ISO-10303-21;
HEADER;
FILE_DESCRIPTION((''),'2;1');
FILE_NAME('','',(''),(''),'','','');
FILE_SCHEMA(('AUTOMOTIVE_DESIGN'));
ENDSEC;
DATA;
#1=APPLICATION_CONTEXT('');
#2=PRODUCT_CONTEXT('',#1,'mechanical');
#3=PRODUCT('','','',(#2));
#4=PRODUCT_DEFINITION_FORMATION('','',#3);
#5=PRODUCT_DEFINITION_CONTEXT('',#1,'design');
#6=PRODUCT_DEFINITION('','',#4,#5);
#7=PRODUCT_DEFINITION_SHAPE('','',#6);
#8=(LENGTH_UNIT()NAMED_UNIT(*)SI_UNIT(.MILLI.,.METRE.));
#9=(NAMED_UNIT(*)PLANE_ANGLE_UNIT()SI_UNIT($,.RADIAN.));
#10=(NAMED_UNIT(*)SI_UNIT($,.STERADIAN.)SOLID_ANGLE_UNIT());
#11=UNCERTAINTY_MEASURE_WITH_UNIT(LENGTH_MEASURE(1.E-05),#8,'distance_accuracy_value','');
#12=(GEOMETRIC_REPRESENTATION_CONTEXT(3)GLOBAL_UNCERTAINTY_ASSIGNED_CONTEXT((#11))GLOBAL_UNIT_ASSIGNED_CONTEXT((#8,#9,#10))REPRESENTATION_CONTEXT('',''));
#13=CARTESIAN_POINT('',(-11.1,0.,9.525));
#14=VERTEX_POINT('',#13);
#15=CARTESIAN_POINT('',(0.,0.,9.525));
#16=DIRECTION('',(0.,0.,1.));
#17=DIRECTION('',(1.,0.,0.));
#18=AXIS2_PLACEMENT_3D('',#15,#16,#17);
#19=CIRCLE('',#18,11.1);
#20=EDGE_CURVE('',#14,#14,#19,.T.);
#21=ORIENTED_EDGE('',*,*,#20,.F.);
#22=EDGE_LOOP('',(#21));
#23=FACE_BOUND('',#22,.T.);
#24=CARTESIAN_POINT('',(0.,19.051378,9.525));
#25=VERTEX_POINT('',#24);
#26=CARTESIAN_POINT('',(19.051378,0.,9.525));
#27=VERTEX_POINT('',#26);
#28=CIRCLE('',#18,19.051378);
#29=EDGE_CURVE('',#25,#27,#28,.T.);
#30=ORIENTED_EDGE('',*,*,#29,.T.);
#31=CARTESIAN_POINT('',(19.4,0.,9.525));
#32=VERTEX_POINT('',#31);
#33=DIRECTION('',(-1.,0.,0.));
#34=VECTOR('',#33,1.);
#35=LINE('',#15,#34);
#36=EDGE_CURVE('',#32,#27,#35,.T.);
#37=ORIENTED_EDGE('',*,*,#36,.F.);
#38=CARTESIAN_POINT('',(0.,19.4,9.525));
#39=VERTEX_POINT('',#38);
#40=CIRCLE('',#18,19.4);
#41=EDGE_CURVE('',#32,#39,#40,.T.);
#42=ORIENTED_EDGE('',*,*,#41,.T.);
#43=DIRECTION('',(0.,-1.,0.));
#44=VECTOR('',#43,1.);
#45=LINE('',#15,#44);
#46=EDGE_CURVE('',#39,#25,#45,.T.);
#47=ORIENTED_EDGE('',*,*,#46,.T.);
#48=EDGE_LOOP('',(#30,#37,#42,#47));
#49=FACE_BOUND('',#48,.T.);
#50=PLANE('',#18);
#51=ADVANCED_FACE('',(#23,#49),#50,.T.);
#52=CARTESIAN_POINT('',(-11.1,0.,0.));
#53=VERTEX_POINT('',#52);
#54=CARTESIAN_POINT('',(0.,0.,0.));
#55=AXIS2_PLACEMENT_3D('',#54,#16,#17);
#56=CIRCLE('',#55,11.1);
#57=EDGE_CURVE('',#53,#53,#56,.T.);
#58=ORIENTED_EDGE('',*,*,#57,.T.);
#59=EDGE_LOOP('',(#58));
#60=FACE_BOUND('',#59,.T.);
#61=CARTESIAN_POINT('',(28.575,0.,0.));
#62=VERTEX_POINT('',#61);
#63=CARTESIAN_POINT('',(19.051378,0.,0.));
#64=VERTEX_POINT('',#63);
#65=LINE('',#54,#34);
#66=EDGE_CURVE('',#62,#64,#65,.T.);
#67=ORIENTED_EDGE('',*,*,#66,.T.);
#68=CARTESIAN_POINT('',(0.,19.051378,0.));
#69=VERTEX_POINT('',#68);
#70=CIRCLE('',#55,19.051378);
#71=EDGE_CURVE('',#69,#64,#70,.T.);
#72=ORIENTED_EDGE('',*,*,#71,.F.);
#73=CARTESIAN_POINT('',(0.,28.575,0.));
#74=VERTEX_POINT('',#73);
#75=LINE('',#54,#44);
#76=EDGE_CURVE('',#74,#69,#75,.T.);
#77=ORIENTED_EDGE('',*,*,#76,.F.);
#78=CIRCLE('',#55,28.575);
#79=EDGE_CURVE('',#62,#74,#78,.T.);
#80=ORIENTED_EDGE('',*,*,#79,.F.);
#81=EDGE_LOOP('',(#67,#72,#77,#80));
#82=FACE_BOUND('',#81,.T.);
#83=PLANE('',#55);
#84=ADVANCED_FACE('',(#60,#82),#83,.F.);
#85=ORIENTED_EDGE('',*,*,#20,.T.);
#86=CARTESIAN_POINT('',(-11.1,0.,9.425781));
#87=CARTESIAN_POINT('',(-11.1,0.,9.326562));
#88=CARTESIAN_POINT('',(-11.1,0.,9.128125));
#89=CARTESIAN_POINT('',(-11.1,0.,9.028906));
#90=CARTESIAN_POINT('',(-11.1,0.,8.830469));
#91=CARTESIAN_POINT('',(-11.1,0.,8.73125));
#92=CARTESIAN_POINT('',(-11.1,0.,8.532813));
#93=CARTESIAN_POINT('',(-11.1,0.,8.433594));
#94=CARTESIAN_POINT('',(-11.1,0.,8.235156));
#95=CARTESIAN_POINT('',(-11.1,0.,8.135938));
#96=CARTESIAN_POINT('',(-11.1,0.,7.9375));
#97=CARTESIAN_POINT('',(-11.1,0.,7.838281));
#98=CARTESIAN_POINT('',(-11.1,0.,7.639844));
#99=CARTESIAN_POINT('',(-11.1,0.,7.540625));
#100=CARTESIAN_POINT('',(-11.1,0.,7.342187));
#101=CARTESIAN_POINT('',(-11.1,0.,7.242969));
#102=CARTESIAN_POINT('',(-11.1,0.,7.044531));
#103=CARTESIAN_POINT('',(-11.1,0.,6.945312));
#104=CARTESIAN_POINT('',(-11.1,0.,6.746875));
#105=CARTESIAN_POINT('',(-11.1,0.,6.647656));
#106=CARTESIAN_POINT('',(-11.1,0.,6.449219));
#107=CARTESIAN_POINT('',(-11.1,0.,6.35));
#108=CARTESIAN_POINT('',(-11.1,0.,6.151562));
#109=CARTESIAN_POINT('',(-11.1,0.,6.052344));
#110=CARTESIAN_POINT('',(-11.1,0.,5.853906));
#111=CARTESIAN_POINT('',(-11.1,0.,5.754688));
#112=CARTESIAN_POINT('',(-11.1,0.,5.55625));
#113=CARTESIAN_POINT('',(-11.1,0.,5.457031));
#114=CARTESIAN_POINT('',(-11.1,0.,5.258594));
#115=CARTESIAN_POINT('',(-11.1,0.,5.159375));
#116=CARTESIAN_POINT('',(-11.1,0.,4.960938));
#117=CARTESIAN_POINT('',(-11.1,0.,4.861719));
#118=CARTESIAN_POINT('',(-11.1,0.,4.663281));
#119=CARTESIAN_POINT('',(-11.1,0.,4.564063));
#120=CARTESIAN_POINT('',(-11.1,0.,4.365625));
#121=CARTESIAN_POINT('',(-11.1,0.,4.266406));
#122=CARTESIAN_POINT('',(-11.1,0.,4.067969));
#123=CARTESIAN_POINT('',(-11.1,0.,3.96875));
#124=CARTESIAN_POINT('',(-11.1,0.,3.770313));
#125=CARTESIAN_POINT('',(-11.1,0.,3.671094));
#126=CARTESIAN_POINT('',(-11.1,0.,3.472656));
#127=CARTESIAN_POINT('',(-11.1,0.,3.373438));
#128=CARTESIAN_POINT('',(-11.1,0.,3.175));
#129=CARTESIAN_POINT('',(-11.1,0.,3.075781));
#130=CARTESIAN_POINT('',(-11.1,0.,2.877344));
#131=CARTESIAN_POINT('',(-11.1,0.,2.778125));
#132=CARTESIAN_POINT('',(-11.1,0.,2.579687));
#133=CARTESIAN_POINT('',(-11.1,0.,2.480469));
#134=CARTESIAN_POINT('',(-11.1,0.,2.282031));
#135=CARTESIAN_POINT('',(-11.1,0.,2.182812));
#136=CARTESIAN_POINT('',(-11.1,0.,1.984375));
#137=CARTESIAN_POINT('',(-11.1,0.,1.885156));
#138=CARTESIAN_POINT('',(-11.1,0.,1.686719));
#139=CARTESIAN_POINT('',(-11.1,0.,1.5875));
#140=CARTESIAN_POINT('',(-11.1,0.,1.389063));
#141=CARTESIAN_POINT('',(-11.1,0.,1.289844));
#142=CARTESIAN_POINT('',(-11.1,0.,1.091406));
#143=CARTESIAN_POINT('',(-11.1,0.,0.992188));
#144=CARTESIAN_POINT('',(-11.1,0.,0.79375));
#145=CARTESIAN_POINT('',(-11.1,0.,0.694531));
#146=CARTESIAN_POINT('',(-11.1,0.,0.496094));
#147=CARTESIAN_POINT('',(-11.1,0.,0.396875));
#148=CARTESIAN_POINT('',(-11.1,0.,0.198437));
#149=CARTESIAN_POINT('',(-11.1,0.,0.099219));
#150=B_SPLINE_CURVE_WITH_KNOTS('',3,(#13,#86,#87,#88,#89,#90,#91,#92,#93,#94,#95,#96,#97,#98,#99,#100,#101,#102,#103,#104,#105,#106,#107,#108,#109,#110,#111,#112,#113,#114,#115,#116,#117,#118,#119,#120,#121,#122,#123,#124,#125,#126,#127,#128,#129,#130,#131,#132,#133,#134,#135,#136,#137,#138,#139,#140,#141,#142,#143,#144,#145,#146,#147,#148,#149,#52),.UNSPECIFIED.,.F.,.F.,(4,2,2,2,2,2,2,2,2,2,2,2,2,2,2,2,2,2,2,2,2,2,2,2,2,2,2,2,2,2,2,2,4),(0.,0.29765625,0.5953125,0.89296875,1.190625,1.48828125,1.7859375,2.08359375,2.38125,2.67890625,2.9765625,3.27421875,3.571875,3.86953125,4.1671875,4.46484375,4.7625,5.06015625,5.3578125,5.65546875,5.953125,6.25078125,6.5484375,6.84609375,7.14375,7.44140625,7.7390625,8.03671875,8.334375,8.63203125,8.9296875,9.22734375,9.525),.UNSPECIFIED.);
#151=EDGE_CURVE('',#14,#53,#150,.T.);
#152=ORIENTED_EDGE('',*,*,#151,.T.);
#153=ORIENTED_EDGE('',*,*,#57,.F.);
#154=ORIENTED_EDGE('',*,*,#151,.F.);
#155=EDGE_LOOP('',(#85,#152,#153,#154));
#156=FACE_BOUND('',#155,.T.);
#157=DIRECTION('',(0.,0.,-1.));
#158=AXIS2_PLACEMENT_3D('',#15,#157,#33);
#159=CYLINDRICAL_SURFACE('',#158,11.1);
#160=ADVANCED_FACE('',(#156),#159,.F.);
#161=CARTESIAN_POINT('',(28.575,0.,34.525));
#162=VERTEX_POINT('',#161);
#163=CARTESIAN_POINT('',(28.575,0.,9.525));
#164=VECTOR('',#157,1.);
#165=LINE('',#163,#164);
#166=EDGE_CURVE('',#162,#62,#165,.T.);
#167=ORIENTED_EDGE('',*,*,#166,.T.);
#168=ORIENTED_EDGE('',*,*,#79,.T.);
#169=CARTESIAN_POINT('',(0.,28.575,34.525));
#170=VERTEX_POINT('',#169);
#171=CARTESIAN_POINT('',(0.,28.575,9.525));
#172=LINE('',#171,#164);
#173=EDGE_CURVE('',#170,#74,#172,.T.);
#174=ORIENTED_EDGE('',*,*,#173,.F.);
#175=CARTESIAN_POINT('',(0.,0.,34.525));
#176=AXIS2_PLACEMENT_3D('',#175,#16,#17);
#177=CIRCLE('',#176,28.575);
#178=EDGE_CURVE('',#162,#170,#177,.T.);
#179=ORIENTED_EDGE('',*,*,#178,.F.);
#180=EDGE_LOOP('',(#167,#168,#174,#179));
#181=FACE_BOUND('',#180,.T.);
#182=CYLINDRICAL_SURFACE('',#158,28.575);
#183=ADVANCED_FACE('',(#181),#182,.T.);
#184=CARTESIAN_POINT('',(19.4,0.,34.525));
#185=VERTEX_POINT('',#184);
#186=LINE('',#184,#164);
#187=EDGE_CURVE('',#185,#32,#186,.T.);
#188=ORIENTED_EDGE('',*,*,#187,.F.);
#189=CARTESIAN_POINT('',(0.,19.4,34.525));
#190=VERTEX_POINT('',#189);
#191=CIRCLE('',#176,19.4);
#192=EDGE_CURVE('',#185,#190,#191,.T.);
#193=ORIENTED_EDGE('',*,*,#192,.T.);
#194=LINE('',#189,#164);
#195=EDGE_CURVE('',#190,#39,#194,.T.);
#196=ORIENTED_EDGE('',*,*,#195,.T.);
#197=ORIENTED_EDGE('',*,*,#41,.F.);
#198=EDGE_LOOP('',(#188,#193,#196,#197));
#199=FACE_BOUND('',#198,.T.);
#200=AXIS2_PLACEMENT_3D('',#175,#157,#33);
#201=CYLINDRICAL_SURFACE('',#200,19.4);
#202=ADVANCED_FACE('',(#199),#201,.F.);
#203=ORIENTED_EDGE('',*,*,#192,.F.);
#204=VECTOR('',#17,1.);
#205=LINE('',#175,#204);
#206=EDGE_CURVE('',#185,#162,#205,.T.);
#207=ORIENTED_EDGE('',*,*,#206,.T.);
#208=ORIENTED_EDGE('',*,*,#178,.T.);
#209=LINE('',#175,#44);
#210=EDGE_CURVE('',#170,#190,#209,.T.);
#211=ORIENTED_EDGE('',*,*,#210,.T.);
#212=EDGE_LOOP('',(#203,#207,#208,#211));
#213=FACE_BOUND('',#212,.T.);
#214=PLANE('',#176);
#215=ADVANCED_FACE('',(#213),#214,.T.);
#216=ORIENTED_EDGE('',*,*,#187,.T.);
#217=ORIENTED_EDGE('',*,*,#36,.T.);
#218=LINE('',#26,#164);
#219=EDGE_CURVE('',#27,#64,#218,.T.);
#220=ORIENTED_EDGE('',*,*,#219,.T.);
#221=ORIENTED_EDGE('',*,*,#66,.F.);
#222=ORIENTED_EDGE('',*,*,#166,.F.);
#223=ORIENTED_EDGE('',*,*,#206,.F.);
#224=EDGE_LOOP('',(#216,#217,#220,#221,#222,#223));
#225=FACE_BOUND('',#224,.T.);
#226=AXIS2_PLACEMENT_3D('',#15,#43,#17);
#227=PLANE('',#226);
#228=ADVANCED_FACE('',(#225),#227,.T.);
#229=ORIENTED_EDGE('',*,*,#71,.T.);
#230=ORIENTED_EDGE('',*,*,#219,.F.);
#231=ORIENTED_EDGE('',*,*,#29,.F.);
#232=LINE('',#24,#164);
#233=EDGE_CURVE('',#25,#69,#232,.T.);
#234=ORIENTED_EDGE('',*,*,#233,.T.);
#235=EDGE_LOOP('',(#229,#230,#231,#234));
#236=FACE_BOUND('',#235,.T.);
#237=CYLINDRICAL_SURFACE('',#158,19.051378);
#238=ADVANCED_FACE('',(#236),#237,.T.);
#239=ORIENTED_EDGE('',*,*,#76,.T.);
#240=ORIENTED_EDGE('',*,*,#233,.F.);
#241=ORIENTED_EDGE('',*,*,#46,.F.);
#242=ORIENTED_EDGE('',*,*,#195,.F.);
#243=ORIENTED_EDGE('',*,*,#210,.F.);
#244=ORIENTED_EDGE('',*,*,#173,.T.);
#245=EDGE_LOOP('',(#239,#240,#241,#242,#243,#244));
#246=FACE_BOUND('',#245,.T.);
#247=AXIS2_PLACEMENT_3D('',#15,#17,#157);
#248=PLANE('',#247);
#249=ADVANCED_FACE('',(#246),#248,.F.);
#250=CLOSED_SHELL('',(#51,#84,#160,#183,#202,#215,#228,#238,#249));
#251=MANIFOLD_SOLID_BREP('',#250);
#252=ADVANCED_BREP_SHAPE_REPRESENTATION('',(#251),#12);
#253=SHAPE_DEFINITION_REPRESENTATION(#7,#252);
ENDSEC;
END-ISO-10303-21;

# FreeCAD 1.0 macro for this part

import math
import FreeCAD as App
import Part
import Sketcher

V = App.Vector
Q = App.Units.Quantity

doc = App.newDocument("Part")
body = doc.addObject("PartDesign::Body", "Body")

# Sketch on XY plane
sketch1 = body.newObject("Sketcher::SketchObject", "Sketch")
sketch1.AttachmentSupport = (doc.getObject("XY_Plane"), [""])
sketch1.MapMode = "FlatFace"
sketch1.addGeometry(Part.ArcOfCircle(Part.Circle(V(0, 0, 0), V(0, 0, 1), 28.575), math.radians(0), math.radians(90)), False)
sketch1.addGeometry(Part.LineSegment(V(0, 28.575, 0), V(0, 19.051378, 0)), False)
sketch1.addGeometry(Part.ArcOfCircle(Part.Circle(V(0, 0, 0), V(0, 0, 1), 19.051378), math.radians(90), math.radians(360)), False)
sketch1.addGeometry(Part.LineSegment(V(19.051378, 0, 0), V(28.575, 0, 0)), False)
sketch1.addGeometry(Part.Circle(V(0, 0, 0), V(0, 0, 1), 11.1), False)
sketch1.addConstraint(Sketcher.Constraint("Coincident", 0, 2, 1, 1))
sketch1.addConstraint(Sketcher.Constraint("Coincident", 1, 2, 2, 1))
sketch1.addConstraint(Sketcher.Constraint("Coincident", 2, 2, 3, 1))
sketch1.addConstraint(Sketcher.Constraint("Coincident", 3, 2, 0, 1))
sketch1.addConstraint(Sketcher.Constraint("Vertical", 1))
sketch1.addConstraint(Sketcher.Constraint("Horizontal", 3))
sketch1.addConstraint(Sketcher.Constraint("Coincident", 0, 3, -1, 1))
sketch1.addConstraint(Sketcher.Constraint("Coincident", 2, 3, -1, 1))
sketch1.addConstraint(Sketcher.Constraint("Coincident", 4, 3, -1, 1))
sketch1.addConstraint(Sketcher.Constraint("PointOnObject", 0, 2, -2))
sketch1.addConstraint(Sketcher.Constraint("PointOnObject", 2, 2, -1))
sketch1.addConstraint(Sketcher.Constraint("Diameter", 4, Q("22.2 mm")))
sketch1.addConstraint(Sketcher.Constraint("Radius", 0, Q("28.575 mm")))
sketch1.addConstraint(Sketcher.Constraint("Radius", 2, Q("19.051378 mm")))
pad1 = body.newObject("PartDesign::Pad", "Pad")
pad1.Profile = sketch1
pad1.Length = 9.525

# Sketch on XY plane
sketch2 = body.newObject("Sketcher::SketchObject", "Sketch001")
sketch2.AttachmentSupport = (doc.getObject("XY_Plane"), [""])
sketch2.MapMode = "FlatFace"
sketch2.AttachmentOffset = App.Placement(V(0, 0, 9.525), App.Rotation())
sketch2.addGeometry(Part.LineSegment(V(19.4, 0, 0), V(28.575, 0, 0)), False)
sketch2.addGeometry(Part.ArcOfCircle(Part.Circle(V(0, 0, 0), V(0, 0, 1), 28.575), math.radians(0), math.radians(90)), False)
sketch2.addGeometry(Part.LineSegment(V(0, 28.575, 0), V(0, 19.4, 0)), False)
sketch2.addGeometry(Part.ArcOfCircle(Part.Circle(V(0, 0, 0), V(0, 0, 1), 19.4), math.radians(0), math.radians(90)), False)
sketch2.addConstraint(Sketcher.Constraint("Coincident", 0, 2, 1, 1))
sketch2.addConstraint(Sketcher.Constraint("Coincident", 1, 2, 2, 1))
sketch2.addConstraint(Sketcher.Constraint("Coincident", 2, 2, 3, 2))
sketch2.addConstraint(Sketcher.Constraint("Coincident", 3, 1, 0, 1))
sketch2.addConstraint(Sketcher.Constraint("Horizontal", 0))
sketch2.addConstraint(Sketcher.Constraint("Vertical", 2))
sketch2.addConstraint(Sketcher.Constraint("Coincident", 1, 3, -1, 1))
sketch2.addConstraint(Sketcher.Constraint("Coincident", 3, 3, -1, 1))
sketch2.addConstraint(Sketcher.Constraint("PointOnObject", 0, 2, -1))
sketch2.addConstraint(Sketcher.Constraint("PointOnObject", 1, 2, -2))
sketch2.addConstraint(Sketcher.Constraint("Radius", 3, Q("19.4 mm")))
sketch2.addConstraint(Sketcher.Constraint("Radius", 1, Q("28.575 mm")))
pad2 = body.newObject("PartDesign::Pad", "Pad001")
pad2.Profile = sketch2
pad2.Length = 25

doc.recompute()
